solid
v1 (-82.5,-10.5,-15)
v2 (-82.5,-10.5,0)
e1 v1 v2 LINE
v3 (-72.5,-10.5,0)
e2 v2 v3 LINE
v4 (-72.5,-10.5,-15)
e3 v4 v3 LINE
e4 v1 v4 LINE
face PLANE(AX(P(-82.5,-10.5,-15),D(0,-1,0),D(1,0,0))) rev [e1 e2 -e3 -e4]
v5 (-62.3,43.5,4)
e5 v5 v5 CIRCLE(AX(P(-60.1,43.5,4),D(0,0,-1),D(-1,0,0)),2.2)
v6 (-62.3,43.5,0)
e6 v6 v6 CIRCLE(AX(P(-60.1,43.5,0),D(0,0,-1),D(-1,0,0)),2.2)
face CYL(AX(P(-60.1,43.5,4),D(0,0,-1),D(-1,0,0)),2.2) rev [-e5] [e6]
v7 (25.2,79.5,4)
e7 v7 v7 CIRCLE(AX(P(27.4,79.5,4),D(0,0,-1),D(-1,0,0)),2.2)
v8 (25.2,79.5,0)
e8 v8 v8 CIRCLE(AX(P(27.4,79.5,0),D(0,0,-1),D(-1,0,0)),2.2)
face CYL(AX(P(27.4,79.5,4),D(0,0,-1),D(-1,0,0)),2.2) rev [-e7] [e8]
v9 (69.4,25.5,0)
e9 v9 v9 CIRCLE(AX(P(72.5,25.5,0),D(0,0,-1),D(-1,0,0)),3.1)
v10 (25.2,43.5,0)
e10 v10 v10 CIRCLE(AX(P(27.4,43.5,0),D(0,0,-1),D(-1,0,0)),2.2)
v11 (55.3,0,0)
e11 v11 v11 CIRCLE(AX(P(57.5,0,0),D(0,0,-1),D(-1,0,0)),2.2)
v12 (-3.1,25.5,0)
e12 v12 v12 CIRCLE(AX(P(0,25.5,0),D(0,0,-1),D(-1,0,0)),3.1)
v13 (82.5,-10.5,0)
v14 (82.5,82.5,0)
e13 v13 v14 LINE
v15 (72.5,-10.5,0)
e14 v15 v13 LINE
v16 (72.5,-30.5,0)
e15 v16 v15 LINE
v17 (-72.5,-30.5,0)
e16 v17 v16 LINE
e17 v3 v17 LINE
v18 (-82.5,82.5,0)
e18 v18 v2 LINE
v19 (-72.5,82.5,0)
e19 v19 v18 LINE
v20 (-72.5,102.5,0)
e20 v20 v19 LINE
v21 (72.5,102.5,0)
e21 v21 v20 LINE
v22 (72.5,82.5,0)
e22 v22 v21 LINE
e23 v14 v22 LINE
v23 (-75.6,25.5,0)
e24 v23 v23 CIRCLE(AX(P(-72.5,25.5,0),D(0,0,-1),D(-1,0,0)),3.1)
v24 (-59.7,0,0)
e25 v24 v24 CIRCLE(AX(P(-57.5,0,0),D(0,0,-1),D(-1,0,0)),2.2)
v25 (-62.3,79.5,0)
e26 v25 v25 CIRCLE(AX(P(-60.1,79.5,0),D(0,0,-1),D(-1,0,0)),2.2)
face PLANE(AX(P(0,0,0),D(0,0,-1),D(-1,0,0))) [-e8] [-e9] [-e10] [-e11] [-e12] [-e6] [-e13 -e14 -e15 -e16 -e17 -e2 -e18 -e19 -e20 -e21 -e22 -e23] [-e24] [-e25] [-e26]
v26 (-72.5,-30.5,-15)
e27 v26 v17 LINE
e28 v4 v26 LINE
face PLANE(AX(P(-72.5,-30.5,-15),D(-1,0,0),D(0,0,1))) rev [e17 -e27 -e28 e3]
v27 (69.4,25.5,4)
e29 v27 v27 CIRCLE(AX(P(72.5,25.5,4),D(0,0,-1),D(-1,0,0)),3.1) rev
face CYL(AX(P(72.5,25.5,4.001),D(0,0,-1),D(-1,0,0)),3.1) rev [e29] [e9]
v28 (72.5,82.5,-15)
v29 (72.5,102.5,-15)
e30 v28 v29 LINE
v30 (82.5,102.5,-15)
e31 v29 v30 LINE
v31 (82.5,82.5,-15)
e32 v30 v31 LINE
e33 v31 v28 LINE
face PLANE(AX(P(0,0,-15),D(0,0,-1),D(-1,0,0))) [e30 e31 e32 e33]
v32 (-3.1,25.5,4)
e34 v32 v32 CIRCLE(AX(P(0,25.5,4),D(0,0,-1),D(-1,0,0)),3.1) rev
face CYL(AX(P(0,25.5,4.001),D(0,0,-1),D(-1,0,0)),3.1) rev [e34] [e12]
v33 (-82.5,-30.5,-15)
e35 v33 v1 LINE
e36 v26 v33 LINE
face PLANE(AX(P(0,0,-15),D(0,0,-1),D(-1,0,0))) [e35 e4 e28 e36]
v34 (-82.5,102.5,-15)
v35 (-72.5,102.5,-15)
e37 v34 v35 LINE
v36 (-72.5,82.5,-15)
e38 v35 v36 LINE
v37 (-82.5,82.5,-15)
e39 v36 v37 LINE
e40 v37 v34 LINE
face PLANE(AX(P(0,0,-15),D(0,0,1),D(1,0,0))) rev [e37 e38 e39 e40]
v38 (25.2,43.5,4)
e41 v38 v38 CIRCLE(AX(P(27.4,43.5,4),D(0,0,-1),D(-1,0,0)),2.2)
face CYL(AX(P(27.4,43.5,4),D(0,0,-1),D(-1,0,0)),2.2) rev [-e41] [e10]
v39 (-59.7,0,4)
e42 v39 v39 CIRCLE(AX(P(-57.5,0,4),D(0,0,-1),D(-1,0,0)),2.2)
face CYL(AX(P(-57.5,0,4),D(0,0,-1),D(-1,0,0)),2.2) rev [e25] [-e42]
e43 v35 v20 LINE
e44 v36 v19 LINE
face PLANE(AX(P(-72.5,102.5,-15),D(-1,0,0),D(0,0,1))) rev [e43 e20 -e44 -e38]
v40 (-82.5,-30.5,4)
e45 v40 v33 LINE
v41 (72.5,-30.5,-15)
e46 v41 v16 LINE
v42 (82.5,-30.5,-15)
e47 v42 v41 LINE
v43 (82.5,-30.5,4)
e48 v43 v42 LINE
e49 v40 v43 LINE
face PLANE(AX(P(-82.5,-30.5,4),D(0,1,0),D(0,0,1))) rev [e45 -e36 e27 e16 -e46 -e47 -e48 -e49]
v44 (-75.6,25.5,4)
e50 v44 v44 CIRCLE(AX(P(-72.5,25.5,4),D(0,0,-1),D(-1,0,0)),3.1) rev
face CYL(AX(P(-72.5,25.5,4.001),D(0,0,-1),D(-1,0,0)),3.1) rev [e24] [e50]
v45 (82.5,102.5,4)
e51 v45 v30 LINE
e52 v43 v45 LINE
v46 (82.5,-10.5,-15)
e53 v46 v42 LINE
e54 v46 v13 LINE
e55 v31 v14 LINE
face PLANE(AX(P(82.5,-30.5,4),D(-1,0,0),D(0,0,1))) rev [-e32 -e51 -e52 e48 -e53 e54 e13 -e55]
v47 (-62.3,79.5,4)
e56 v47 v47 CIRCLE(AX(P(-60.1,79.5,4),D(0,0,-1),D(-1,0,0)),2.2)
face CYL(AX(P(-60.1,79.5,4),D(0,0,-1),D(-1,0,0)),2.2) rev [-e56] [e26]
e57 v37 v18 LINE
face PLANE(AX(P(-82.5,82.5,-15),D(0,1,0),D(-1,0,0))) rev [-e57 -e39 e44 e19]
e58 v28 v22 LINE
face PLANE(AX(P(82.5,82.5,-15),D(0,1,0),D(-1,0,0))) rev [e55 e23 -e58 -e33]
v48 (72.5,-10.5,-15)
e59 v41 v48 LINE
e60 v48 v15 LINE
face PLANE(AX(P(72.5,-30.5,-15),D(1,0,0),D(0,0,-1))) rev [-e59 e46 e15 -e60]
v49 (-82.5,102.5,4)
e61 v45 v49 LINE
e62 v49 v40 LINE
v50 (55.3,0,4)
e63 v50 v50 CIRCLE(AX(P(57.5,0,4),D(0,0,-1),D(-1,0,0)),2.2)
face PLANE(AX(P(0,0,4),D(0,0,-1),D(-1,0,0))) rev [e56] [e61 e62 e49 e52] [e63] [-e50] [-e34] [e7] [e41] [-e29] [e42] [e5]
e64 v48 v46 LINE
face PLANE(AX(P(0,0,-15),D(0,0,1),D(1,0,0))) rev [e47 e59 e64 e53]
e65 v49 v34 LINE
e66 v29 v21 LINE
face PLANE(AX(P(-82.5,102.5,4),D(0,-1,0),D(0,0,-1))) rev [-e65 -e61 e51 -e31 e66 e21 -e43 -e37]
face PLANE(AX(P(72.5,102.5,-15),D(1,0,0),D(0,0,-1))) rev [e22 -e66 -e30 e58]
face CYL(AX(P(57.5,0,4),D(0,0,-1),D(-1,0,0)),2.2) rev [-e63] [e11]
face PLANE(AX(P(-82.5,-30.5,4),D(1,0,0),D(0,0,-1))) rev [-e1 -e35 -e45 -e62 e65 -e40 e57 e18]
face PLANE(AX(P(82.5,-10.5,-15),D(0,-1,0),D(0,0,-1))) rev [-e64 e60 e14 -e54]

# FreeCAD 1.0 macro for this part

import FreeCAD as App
import Part
import Sketcher
from FreeCAD import Vector
Q = App.Units.Quantity

doc = App.newDocument("Part")
params = doc.addObject("Spreadsheet::Sheet", "Params")
for row, (alias, value) in enumerate([
    ("sketch1_width", "165 mm"),
    ("sketch1_height", "133 mm"),
    ("pad1_length", "4 mm"),
    ("sketch2_diameter", "4.4 mm"),
    ("pocket1_length", "4 mm"),
    ("sketch3_width", "10 mm"),
    ("sketch3_height", "20 mm"),
    ("pad2_length", "15 mm"),
    ("sketch4_diameter", "6.2 mm"),
    ("sketch5_diameter", "6.2 mm"),
    ("sketch6_diameter", "6.2 mm"),
], start=1):
    params.set(f"A{row}", alias)
    params.set(f"B{row}", "=" + value)
    params.setAlias(f"B{row}", alias)

body = doc.addObject("PartDesign::Body", "Body")

# Sketch on XY plane
sketch1 = doc.addObject("Sketcher::SketchObject", "Sketch")
body.addObject(sketch1)
sketch1.AttachmentSupport = (doc.XY_Plane, [""])
sketch1.MapMode = "FlatFace"
sketch1.addGeometry(Part.LineSegment(Vector(-82, 102, 0), Vector(-82, -30, 0)), False)
sketch1.addGeometry(Part.LineSegment(Vector(-82, -30, 0), Vector(82, -30, 0)), False)
sketch1.addGeometry(Part.LineSegment(Vector(82, -30, 0), Vector(82, 102, 0)), False)
sketch1.addGeometry(Part.LineSegment(Vector(82, 102, 0), Vector(-82, 102, 0)), False)
sketch1.addConstraint(Sketcher.Constraint("Coincident", 0, 2, 1, 1))
sketch1.addConstraint(Sketcher.Constraint("Coincident", 1, 2, 2, 1))
sketch1.addConstraint(Sketcher.Constraint("Coincident", 2, 2, 3, 1))
sketch1.addConstraint(Sketcher.Constraint("Coincident", 3, 2, 0, 1))
sketch1.addConstraint(Sketcher.Constraint("Vertical", 0))
sketch1.addConstraint(Sketcher.Constraint("Horizontal", 1))
sketch1.addConstraint(Sketcher.Constraint("Vertical", 2))
sketch1.addConstraint(Sketcher.Constraint("Horizontal", 3))
sketch1.addConstraint(Sketcher.Constraint("DistanceX", 1, 1, 1, 2, Q("165 mm")))
sketch1.addConstraint(Sketcher.Constraint("DistanceY", 0, 2, 0, 1, Q("133 mm")))
sketch1.addConstraint(Sketcher.Constraint("DistanceX", 0, 2, -1, 1, Q("82.5 mm")))
sketch1.addConstraint(Sketcher.Constraint("DistanceY", 0, 2, -1, 1, Q("30.5 mm")))
sketch1.setExpression("Constraints[8]", "Params.sketch1_width")
sketch1.setExpression("Constraints[9]", "Params.sketch1_height")
pad1 = doc.addObject("PartDesign::Pad", "Pad")
body.addObject(pad1)
pad1.Profile = sketch1
pad1.setExpression("Length", "Params.pad1_length")

# Sketch on XY plane
sketch2 = doc.addObject("Sketcher::SketchObject", "Sketch001")
body.addObject(sketch2)
sketch2.AttachmentSupport = (doc.XY_Plane, [""])
sketch2.MapMode = "FlatFace"
sketch2.addGeometry(Part.Circle(Vector(27.4, 43.5, 0), Vector(0, 0, 1), 2.2), False)
sketch2.addGeometry(Part.Circle(Vector(-60.1, 43.5, 0), Vector(0, 0, 1), 2.2), False)
sketch2.addGeometry(Part.Circle(Vector(-60.1, 79.5, 0), Vector(0, 0, 1), 2.2), False)
sketch2.addGeometry(Part.Circle(Vector(27.4, 79.5, 0), Vector(0, 0, 1), 2.2), False)
sketch2.addGeometry(Part.Circle(Vector(-57.5, 0, 0), Vector(0, 0, 1), 2.2), False)
sketch2.addGeometry(Part.Circle(Vector(57.5, 0, 0), Vector(0, 0, 1), 2.2), False)
sketch2.addConstraint(Sketcher.Constraint("Equal", 0, 1))
sketch2.addConstraint(Sketcher.Constraint("Equal", 1, 2))
sketch2.addConstraint(Sketcher.Constraint("Equal", 2, 3))
sketch2.addConstraint(Sketcher.Constraint("Equal", 3, 4))
sketch2.addConstraint(Sketcher.Constraint("Equal", 4, 5))
sketch2.addConstraint(Sketcher.Constraint("Symmetric", 4, 3, 5, 3, -1, 1))
sketch2.addConstraint(Sketcher.Constraint("PointOnObject", 4, 3, -1))
sketch2.addConstraint(Sketcher.Constraint("Horizontal", 0, 3, 1, 3))
sketch2.addConstraint(Sketcher.Constraint("Horizontal", 2, 3, 3, 3))
sketch2.addConstraint(Sketcher.Constraint("Vertical", 1, 3, 2, 3))
sketch2.addConstraint(Sketcher.Constraint("Vertical", 0, 3, 3, 3))
sketch2.addConstraint(Sketcher.Constraint("Diameter", 0, Q("4.4 mm")))
sketch2.addConstraint(Sketcher.Constraint("DistanceY", 1, 3, 2, 3, Q("36 mm")))
sketch2.addConstraint(Sketcher.Constraint("DistanceX", 4, 3, 5, 3, Q("115 mm")))
sketch2.addConstraint(Sketcher.Constraint("DistanceX", -1, 1, 0, 3, Q("27.4 mm")))
sketch2.addConstraint(Sketcher.Constraint("DistanceY", -1, 1, 0, 3, Q("43.5 mm")))
sketch2.addConstraint(Sketcher.Constraint("DistanceX", 1, 3, -1, 1, Q("60.1 mm")))
sketch2.setExpression("Constraints[11]", "Params.sketch2_diameter")
pocket1 = doc.addObject("PartDesign::Pocket", "Pocket")
body.addObject(pocket1)
pocket1.Profile = sketch2
pocket1.setExpression("Length", "Params.pocket1_length")
pocket1.Reversed = True

# Sketch on XY plane
sketch3 = doc.addObject("Sketcher::SketchObject", "Sketch002")
body.addObject(sketch3)
sketch3.AttachmentSupport = (doc.XY_Plane, [""])
sketch3.MapMode = "FlatFace"
sketch3.addGeometry(Part.LineSegment(Vector(82, -10, 0), Vector(82, -30, 0)), False)
sketch3.addGeometry(Part.LineSegment(Vector(82, -30, 0), Vector(72, -30, 0)), False)
sketch3.addGeometry(Part.LineSegment(Vector(72, -30, 0), Vector(72, -10, 0)), False)
sketch3.addGeometry(Part.LineSegment(Vector(72, -10, 0), Vector(82, -10, 0)), False)
sketch3.addGeometry(Part.LineSegment(Vector(82, 102, 0), Vector(82, 82, 0)), False)
sketch3.addGeometry(Part.LineSegment(Vector(82, 82, 0), Vector(72, 82, 0)), False)
sketch3.addGeometry(Part.LineSegment(Vector(72, 82, 0), Vector(72, 102, 0)), False)
sketch3.addGeometry(Part.LineSegment(Vector(72, 102, 0), Vector(82, 102, 0)), False)
sketch3.addGeometry(Part.LineSegment(Vector(-72, -10, 0), Vector(-72, -30, 0)), False)
sketch3.addGeometry(Part.LineSegment(Vector(-72, -30, 0), Vector(-82, -30, 0)), False)
sketch3.addGeometry(Part.LineSegment(Vector(-82, -30, 0), Vector(-82, -10, 0)), False)
sketch3.addGeometry(Part.LineSegment(Vector(-82, -10, 0), Vector(-72, -10, 0)), False)
sketch3.addGeometry(Part.LineSegment(Vector(-72, 102, 0), Vector(-72, 82, 0)), False)
sketch3.addGeometry(Part.LineSegment(Vector(-72, 82, 0), Vector(-82, 82, 0)), False)
sketch3.addGeometry(Part.LineSegment(Vector(-82, 82, 0), Vector(-82, 102, 0)), False)
sketch3.addGeometry(Part.LineSegment(Vector(-82, 102, 0), Vector(-72, 102, 0)), False)
sketch3.addConstraint(Sketcher.Constraint("Coincident", 0, 2, 1, 1))
sketch3.addConstraint(Sketcher.Constraint("Coincident", 1, 2, 2, 1))
sketch3.addConstraint(Sketcher.Constraint("Coincident", 2, 2, 3, 1))
sketch3.addConstraint(Sketcher.Constraint("Coincident", 3, 2, 0, 1))
sketch3.addConstraint(Sketcher.Constraint("Coincident", 4, 2, 5, 1))
sketch3.addConstraint(Sketcher.Constraint("Coincident", 5, 2, 6, 1))
sketch3.addConstraint(Sketcher.Constraint("Coincident", 6, 2, 7, 1))
sketch3.addConstraint(Sketcher.Constraint("Coincident", 7, 2, 4, 1))
sketch3.addConstraint(Sketcher.Constraint("Coincident", 8, 2, 9, 1))
sketch3.addConstraint(Sketcher.Constraint("Coincident", 9, 2, 10, 1))
sketch3.addConstraint(Sketcher.Constraint("Coincident", 10, 2, 11, 1))
sketch3.addConstraint(Sketcher.Constraint("Coincident", 11, 2, 8, 1))
sketch3.addConstraint(Sketcher.Constraint("Coincident", 12, 2, 13, 1))
sketch3.addConstraint(Sketcher.Constraint("Coincident", 13, 2, 14, 1))
sketch3.addConstraint(Sketcher.Constraint("Coincident", 14, 2, 15, 1))
sketch3.addConstraint(Sketcher.Constraint("Coincident", 15, 2, 12, 1))
sketch3.addConstraint(Sketcher.Constraint("Vertical", 0))
sketch3.addConstraint(Sketcher.Constraint("Horizontal", 1))
sketch3.addConstraint(Sketcher.Constraint("Vertical", 2))
sketch3.addConstraint(Sketcher.Constraint("Horizontal", 3))
sketch3.addConstraint(Sketcher.Constraint("Vertical", 4))
sketch3.addConstraint(Sketcher.Constraint("Horizontal", 5))
sketch3.addConstraint(Sketcher.Constraint("Vertical", 6))
sketch3.addConstraint(Sketcher.Constraint("Horizontal", 7))
sketch3.addConstraint(Sketcher.Constraint("Vertical", 8))
sketch3.addConstraint(Sketcher.Constraint("Horizontal", 9))
sketch3.addConstraint(Sketcher.Constraint("Vertical", 10))
sketch3.addConstraint(Sketcher.Constraint("Horizontal", 11))
sketch3.addConstraint(Sketcher.Constraint("Vertical", 12))
sketch3.addConstraint(Sketcher.Constraint("Horizontal", 13))
sketch3.addConstraint(Sketcher.Constraint("Vertical", 14))
sketch3.addConstraint(Sketcher.Constraint("Horizontal", 15))
sketch3.addConstraint(Sketcher.Constraint("Symmetric", 1, 2, 8, 2, -2))
sketch3.addConstraint(Sketcher.Constraint("Symmetric", 3, 2, 10, 2, -2))
sketch3.addConstraint(Sketcher.Constraint("Symmetric", 5, 2, 12, 2, -2))
sketch3.addConstraint(Sketcher.Constraint("Symmetric", 7, 2, 14, 2, -2))
sketch3.addConstraint(Sketcher.Constraint("Vertical", 3, 2, 4, 2))
sketch3.addConstraint(Sketcher.Constraint("Vertical", 2, 2, 5, 2))
sketch3.addConstraint(Sketcher.Constraint("Equal", 2, 4))
sketch3.addConstraint(Sketcher.Constraint("DistanceX", 1, 2, 1, 1, Q("10 mm")))
sketch3.addConstraint(Sketcher.Constraint("DistanceY", 0, 2, 0, 1, Q("20 mm")))
sketch3.addConstraint(Sketcher.Constraint("DistanceY", 3, 2, 4, 2, Q("93 mm")))
sketch3.addConstraint(Sketcher.Constraint("DistanceX", 8, 2, 1, 2, Q("145 mm")))
sketch3.addConstraint(Sketcher.Constraint("DistanceY", 0, 2, -1, 1, Q("30.5 mm")))
sketch3.setExpression("Constraints[39]", "Params.sketch3_width")
sketch3.setExpression("Constraints[40]", "Params.sketch3_height")
pad2 = doc.addObject("PartDesign::Pad", "Pad001")
body.addObject(pad2)
pad2.Profile = sketch3
pad2.setExpression("Length", "Params.pad2_length")
pad2.Reversed = True

# Sketch on XY plane
sketch4 = doc.addObject("Sketcher::SketchObject", "Sketch003")
body.addObject(sketch4)
sketch4.AttachmentSupport = (doc.XY_Plane, [""])
sketch4.MapMode = "FlatFace"
sketch4.addGeometry(Part.Circle(Vector(72.5, 25.5, 0), Vector(0, 0, 1), 3.1), False)
sketch4.addConstraint(Sketcher.Constraint("Diameter", 0, Q("6.2 mm")))
sketch4.addConstraint(Sketcher.Constraint("DistanceX", -1, 1, 0, 3, Q("72.5 mm")))
sketch4.addConstraint(Sketcher.Constraint("DistanceY", -1, 1, 0, 3, Q("25.5 mm")))
sketch4.setExpression("Constraints[0]", "Params.sketch4_diameter")
pocket2 = doc.addObject("PartDesign::Pocket", "Pocket001")
body.addObject(pocket2)
pocket2.Profile = sketch4
pocket2.Type = "UpToFirst"
pocket2.Reversed = True

# Sketch on XY plane
sketch5 = doc.addObject("Sketcher::SketchObject", "Sketch004")
body.addObject(sketch5)
sketch5.AttachmentSupport = (doc.XY_Plane, [""])
sketch5.MapMode = "FlatFace"
sketch5.addGeometry(Part.Circle(Vector(-72.5, 25.5, 0), Vector(0, 0, 1), 3.1), False)
sketch5.addConstraint(Sketcher.Constraint("Diameter", 0, Q("6.2 mm")))
sketch5.addConstraint(Sketcher.Constraint("DistanceX", 0, 3, -1, 1, Q("72.5 mm")))
sketch5.addConstraint(Sketcher.Constraint("DistanceY", -1, 1, 0, 3, Q("25.5 mm")))
sketch5.setExpression("Constraints[0]", "Params.sketch5_diameter")
pocket3 = doc.addObject("PartDesign::Pocket", "Pocket002")
body.addObject(pocket3)
pocket3.Profile = sketch5
pocket3.Type = "UpToFirst"
pocket3.Reversed = True

# Sketch on XY plane
sketch6 = doc.addObject("Sketcher::SketchObject", "Sketch005")
body.addObject(sketch6)
sketch6.AttachmentSupport = (doc.XY_Plane, [""])
sketch6.MapMode = "FlatFace"
sketch6.addGeometry(Part.Circle(Vector(0, 25.5, 0), Vector(0, 0, 1), 3.1), False)
sketch6.addConstraint(Sketcher.Constraint("PointOnObject", 0, 3, -2))
sketch6.addConstraint(Sketcher.Constraint("Diameter", 0, Q("6.2 mm")))
sketch6.addConstraint(Sketcher.Constraint("DistanceY", -1, 1, 0, 3, Q("25.5 mm")))
sketch6.setExpression("Constraints[1]", "Params.sketch6_diameter")
pocket4 = doc.addObject("PartDesign::Pocket", "Pocket003")
body.addObject(pocket4)
pocket4.Profile = sketch6
pocket4.Type = "UpToFirst"
pocket4.Reversed = True

doc.recompute()
